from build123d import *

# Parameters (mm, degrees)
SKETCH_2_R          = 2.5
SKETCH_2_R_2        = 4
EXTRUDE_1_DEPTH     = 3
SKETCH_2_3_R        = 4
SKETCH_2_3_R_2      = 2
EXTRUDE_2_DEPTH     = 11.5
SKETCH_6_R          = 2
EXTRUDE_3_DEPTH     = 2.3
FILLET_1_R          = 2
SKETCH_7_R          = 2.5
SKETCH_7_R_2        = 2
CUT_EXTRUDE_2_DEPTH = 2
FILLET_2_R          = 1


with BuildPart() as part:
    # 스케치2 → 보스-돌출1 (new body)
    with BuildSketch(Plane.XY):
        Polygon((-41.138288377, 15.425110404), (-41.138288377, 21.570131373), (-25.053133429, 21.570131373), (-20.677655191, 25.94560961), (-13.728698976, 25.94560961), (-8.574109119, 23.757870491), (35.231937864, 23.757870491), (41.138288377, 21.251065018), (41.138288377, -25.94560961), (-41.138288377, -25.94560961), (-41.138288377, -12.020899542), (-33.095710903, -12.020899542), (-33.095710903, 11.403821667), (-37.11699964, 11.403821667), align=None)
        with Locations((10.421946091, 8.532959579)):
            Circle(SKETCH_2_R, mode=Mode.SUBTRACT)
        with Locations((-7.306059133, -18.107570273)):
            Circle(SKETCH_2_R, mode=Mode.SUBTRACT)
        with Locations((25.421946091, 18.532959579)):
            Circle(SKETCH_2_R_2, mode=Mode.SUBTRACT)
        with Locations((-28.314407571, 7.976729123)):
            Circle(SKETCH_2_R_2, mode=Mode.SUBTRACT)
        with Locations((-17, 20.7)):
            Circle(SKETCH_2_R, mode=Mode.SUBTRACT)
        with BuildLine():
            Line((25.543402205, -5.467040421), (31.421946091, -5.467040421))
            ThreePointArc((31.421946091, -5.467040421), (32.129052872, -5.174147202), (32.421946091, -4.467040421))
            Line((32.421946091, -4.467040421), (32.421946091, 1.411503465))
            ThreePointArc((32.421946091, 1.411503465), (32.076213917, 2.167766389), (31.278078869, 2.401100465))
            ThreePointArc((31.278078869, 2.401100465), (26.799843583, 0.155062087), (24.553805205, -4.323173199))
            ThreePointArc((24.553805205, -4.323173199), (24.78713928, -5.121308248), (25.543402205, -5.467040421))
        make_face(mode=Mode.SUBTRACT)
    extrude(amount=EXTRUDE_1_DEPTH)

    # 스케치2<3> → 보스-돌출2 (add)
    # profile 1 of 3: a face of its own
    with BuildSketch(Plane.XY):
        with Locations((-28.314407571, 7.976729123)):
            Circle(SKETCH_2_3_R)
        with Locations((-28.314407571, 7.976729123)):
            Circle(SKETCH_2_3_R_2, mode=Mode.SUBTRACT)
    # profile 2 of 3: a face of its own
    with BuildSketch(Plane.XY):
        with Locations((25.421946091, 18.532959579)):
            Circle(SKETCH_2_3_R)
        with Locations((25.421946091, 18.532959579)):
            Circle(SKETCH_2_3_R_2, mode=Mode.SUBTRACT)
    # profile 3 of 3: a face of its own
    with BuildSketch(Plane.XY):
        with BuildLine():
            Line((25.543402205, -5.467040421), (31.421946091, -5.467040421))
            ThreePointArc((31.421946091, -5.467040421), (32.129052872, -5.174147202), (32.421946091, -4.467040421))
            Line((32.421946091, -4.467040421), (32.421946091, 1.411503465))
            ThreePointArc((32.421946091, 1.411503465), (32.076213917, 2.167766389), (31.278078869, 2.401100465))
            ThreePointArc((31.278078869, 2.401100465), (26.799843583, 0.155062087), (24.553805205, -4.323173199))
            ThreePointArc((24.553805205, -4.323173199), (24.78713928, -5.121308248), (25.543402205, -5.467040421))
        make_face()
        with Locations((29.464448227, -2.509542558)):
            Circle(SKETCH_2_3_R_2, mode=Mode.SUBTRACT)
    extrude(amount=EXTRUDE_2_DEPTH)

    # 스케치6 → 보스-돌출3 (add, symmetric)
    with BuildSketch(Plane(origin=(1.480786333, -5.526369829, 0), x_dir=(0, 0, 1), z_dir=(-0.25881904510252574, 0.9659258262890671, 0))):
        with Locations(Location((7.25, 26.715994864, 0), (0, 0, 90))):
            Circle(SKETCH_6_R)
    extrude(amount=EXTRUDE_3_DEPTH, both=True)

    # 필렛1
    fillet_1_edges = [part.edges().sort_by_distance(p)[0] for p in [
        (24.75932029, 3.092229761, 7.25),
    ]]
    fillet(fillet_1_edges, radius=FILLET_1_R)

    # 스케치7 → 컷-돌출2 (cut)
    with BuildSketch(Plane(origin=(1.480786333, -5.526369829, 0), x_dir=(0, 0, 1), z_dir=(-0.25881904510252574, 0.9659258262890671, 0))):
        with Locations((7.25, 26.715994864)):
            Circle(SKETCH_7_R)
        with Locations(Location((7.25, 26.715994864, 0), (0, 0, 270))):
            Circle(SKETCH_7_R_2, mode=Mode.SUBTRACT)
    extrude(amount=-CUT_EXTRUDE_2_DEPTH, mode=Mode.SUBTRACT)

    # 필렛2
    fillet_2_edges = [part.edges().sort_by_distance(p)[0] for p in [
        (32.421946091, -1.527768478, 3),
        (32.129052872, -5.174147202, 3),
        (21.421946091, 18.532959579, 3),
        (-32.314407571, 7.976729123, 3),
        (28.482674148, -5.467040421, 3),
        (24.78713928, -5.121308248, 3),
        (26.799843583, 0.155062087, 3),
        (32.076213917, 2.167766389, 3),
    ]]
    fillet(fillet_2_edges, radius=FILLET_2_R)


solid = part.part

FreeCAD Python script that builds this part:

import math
import FreeCAD as App
import Part
import Sketcher
Q = App.Units.Quantity


def edges_at(feature, points):
    """Names of the edges that pass closest to the given points."""
    edges = feature.Shape.Edges
    near = lambda p: min(range(len(edges)), key=lambda i: edges[i].distToShape(Part.Vertex(*p))[0])
    return sorted({f"Edge{near(p) + 1}" for p in points})

doc = App.newDocument("Part")
params = doc.addObject("Spreadsheet::Sheet", "Params")
for row, (alias, value) in enumerate([
    ("sketch1_diameter", "5 mm"),
    ("sketch1_diameter2", "8 mm"),
    ("sketch1_radius", "1 mm"),
    ("pad1_length", "3 mm"),
    ("sketch2_diameter", "8 mm"),
    ("sketch2_diameter2", "4 mm"),
    ("sketch2_radius", "1 mm"),
    ("pad2_length", "11.5 mm"),
    ("sketch3_diameter", "4 mm"),
    ("pad3_length", "4.6 mm"),
    ("fillet_radius", "2 mm"),
    ("sketch4_diameter", "5 mm"),
    ("sketch4_diameter2", "4 mm"),
    ("pocket1_length", "2 mm"),
    ("fillet2_radius", "1 mm"),
], start=1):
    params.set(f"A{row}", alias)
    params.set(f"B{row}", "=" + value)
    params.setAlias(f"B{row}", alias)

body = doc.addObject("PartDesign::Body", "Body")

sketch1 = body.newObject("Sketcher::SketchObject", "Sketch")
sketch1.AttachmentSupport = (doc.getObject("XY_Plane"), [""])
sketch1.MapMode = "FlatFace"
sketch1.addGeometry(Part.LineSegment(App.Vector(-41.1, 21.6, 0), App.Vector(-41.1, 15.4, 0)), False)
sketch1.addGeometry(Part.LineSegment(App.Vector(-41.1, 15.4, 0), App.Vector(-37.1, 11.4, 0)), False)
sketch1.addGeometry(Part.LineSegment(App.Vector(-37.1, 11.4, 0), App.Vector(-33.1, 11.4, 0)), False)
sketch1.addGeometry(Part.LineSegment(App.Vector(-33.1, 11.4, 0), App.Vector(-33.1, -12, 0)), False)
sketch1.addGeometry(Part.LineSegment(App.Vector(-33.1, -12, 0), App.Vector(-41.1, -12, 0)), False)
sketch1.addGeometry(Part.LineSegment(App.Vector(-41.1, -12, 0), App.Vector(-41.1, -25.9, 0)), False)
sketch1.addGeometry(Part.LineSegment(App.Vector(-41.1, -25.9, 0), App.Vector(41.1, -25.9, 0)), False)
sketch1.addGeometry(Part.LineSegment(App.Vector(41.1, -25.9, 0), App.Vector(41.1, 21.3, 0)), False)
sketch1.addGeometry(Part.LineSegment(App.Vector(41.1, 21.3, 0), App.Vector(35.2, 23.8, 0)), False)
sketch1.addGeometry(Part.LineSegment(App.Vector(35.2, 23.8, 0), App.Vector(-8.6, 23.8, 0)), False)
sketch1.addGeometry(Part.LineSegment(App.Vector(-8.6, 23.8, 0), App.Vector(-13.7, 25.9, 0)), False)
sketch1.addGeometry(Part.LineSegment(App.Vector(-13.7, 25.9, 0), App.Vector(-20.7, 25.9, 0)), False)
sketch1.addGeometry(Part.LineSegment(App.Vector(-20.7, 25.9, 0), App.Vector(-25.1, 21.6, 0)), False)
sketch1.addGeometry(Part.LineSegment(App.Vector(-25.1, 21.6, 0), App.Vector(-41.1, 21.6, 0)), False)
sketch1.addGeometry(Part.ArcOfCircle(Part.Circle(App.Vector(25.5, -4.5, 0), App.Vector(0, 0, 1), 1), math.radians(172), math.radians(270)), False)
sketch1.addGeometry(Part.ArcOfCircle(Part.Circle(App.Vector(32.4, -5.5, 0), App.Vector(0, 0, 1), 8), math.radians(98), math.radians(172)), False)
sketch1.addGeometry(Part.ArcOfCircle(Part.Circle(App.Vector(31.4, 1.4, 0), App.Vector(0, 0, 1), 1), math.radians(0), math.radians(98)), False)
sketch1.addGeometry(Part.LineSegment(App.Vector(32.4, 1.4, 0), App.Vector(32.4, -4.5, 0)), False)
sketch1.addGeometry(Part.ArcOfCircle(Part.Circle(App.Vector(31.4, -4.5, 0), App.Vector(0, 0, 1), 1), math.radians(-90), math.radians(0)), False)
sketch1.addGeometry(Part.LineSegment(App.Vector(31.4, -5.5, 0), App.Vector(25.5, -5.5, 0)), False)
sketch1.addGeometry(Part.Circle(App.Vector(-7.3, -18.1, 0), App.Vector(0, 0, 1), 2.5), False)
sketch1.addGeometry(Part.Circle(App.Vector(10.4, 8.5, 0), App.Vector(0, 0, 1), 2.5), False)
sketch1.addGeometry(Part.Circle(App.Vector(25.4, 18.5, 0), App.Vector(0, 0, 1), 4), False)
sketch1.addGeometry(Part.Circle(App.Vector(-28.3, 8, 0), App.Vector(0, 0, 1), 4), False)
sketch1.addGeometry(Part.Circle(App.Vector(-17, 20.7, 0), App.Vector(0, 0, 1), 2.5), False)
sketch1.addConstraint(Sketcher.Constraint("Coincident", 0, 2, 1, 1))
sketch1.addConstraint(Sketcher.Constraint("Coincident", 1, 2, 2, 1))
sketch1.addConstraint(Sketcher.Constraint("Coincident", 2, 2, 3, 1))
sketch1.addConstraint(Sketcher.Constraint("Coincident", 3, 2, 4, 1))
sketch1.addConstraint(Sketcher.Constraint("Coincident", 4, 2, 5, 1))
sketch1.addConstraint(Sketcher.Constraint("Coincident", 5, 2, 6, 1))
sketch1.addConstraint(Sketcher.Constraint("Coincident", 6, 2, 7, 1))
sketch1.addConstraint(Sketcher.Constraint("Coincident", 7, 2, 8, 1))
sketch1.addConstraint(Sketcher.Constraint("Coincident", 8, 2, 9, 1))
sketch1.addConstraint(Sketcher.Constraint("Coincident", 9, 2, 10, 1))
sketch1.addConstraint(Sketcher.Constraint("Coincident", 10, 2, 11, 1))
sketch1.addConstraint(Sketcher.Constraint("Coincident", 11, 2, 12, 1))
sketch1.addConstraint(Sketcher.Constraint("Coincident", 12, 2, 13, 1))
sketch1.addConstraint(Sketcher.Constraint("Coincident", 13, 2, 0, 1))
sketch1.addConstraint(Sketcher.Constraint("Tangent", 14, 1, 15, 2))
sketch1.addConstraint(Sketcher.Constraint("Tangent", 15, 1, 16, 2))
sketch1.addConstraint(Sketcher.Constraint("Tangent", 16, 1, 17, 1))
sketch1.addConstraint(Sketcher.Constraint("Tangent", 17, 2, 18, 2))
sketch1.addConstraint(Sketcher.Constraint("Tangent", 18, 1, 19, 1))
sketch1.addConstraint(Sketcher.Constraint("Tangent", 19, 2, 14, 2))
sketch1.addConstraint(Sketcher.Constraint("Vertical", 0))
sketch1.addConstraint(Sketcher.Constraint("Horizontal", 2))
sketch1.addConstraint(Sketcher.Constraint("Vertical", 3))
sketch1.addConstraint(Sketcher.Constraint("Horizontal", 4))
sketch1.addConstraint(Sketcher.Constraint("Vertical", 5))
sketch1.addConstraint(Sketcher.Constraint("Horizontal", 6))
sketch1.addConstraint(Sketcher.Constraint("Vertical", 7))
sketch1.addConstraint(Sketcher.Constraint("Horizontal", 9))
sketch1.addConstraint(Sketcher.Constraint("Horizontal", 11))
sketch1.addConstraint(Sketcher.Constraint("Horizontal", 13))
sketch1.addConstraint(Sketcher.Constraint("Vertical", 17))
sketch1.addConstraint(Sketcher.Constraint("Horizontal", 19))
sketch1.addConstraint(Sketcher.Constraint("Equal", 14, 16))
sketch1.addConstraint(Sketcher.Constraint("Equal", 16, 18))
sketch1.addConstraint(Sketcher.Constraint("Equal", 20, 21))
sketch1.addConstraint(Sketcher.Constraint("Equal", 22, 23))
sketch1.addConstraint(Sketcher.Constraint("Equal", 21, 24))
sketch1.addConstraint(Sketcher.Constraint("Parallel", 8, 10))
sketch1.addConstraint(Sketcher.Constraint("Perpendicular", 1, 12))
sketch1.addConstraint(Sketcher.Constraint("Horizontal", 15, 3, 18, 1))
sketch1.addConstraint(Sketcher.Constraint("Vertical", 0, 2, 4, 2))
sketch1.addConstraint(Sketcher.Constraint("Vertical", 15, 3, 16, 1))
sketch1.addConstraint(Sketcher.Constraint("Diameter", 20, Q("5 mm")))
sketch1.addConstraint(Sketcher.Constraint("Diameter", 22, Q("8 mm")))
sketch1.addConstraint(Sketcher.Constraint("Radius", 14, Q("1 mm")))
sketch1.addConstraint(Sketcher.Constraint("Angle", 1, Q("-45 deg")))
sketch1.addConstraint(Sketcher.Constraint("DistanceX", 24, 3, -1, 1, Q("17 mm")))
sketch1.addConstraint(Sketcher.Constraint("DistanceY", 14, 3, 21, 3, Q("13 mm")))
sketch1.addConstraint(Sketcher.Constraint("DistanceX", 21, 3, 16, 3, Q("21 mm")))
sketch1.addConstraint(Sketcher.Constraint("DistanceX", 21, 3, 22, 3, Q("15 mm")))
sketch1.addConstraint(Sketcher.Constraint("DistanceY", 21, 3, 22, 3, Q("10 mm")))
sketch1.addConstraint(Sketcher.Constraint("DistanceY", -1, 1, 24, 3, Q("20.7 mm")))
sketch1.addConstraint(Sketcher.Constraint("DistanceX", 1, 2, -1, 1, Q("37.117 mm")))
sketch1.addConstraint(Sketcher.Constraint("Radius", 15, Q("7.950854 mm")))
sketch1.addConstraint(Sketcher.Constraint("DistanceX", 2, 1, 2, 2, Q("4.021289 mm")))
sketch1.addConstraint(Sketcher.Constraint("DistanceY", 0, 2, 0, 1, Q("6.145021 mm")))
sketch1.addConstraint(Sketcher.Constraint("DistanceY", 3, 2, 3, 1, Q("23.424721 mm")))
sketch1.addConstraint(Sketcher.Constraint("DistanceY", 5, 2, 5, 1, Q("13.92471 mm")))
sketch1.addConstraint(Sketcher.Constraint("DistanceY", 3, 2, -1, 1, Q("12.0209 mm")))
sketch1.addConstraint(Sketcher.Constraint("DistanceX", 10, 2, -1, 1, Q("13.728699 mm")))
sketch1.addConstraint(Sketcher.Constraint("DistanceY", -1, 1, 15, 1, Q("2.4011 mm")))
sketch1.addConstraint(Sketcher.Constraint("DistanceY", 20, 3, 23, 3, Q("26.084299 mm")))
sketch1.addConstraint(Sketcher.Constraint("DistanceX", 23, 3, 9, 2, Q("19.740298 mm")))
sketch1.addConstraint(Sketcher.Constraint("DistanceX", 2, 2, 9, 2, Q("24.521602 mm")))
sketch1.addConstraint(Sketcher.Constraint("Distance", 1, Q("5.686961 mm")))
sketch1.addConstraint(Sketcher.Constraint("Distance", 8, Q("6.416311 mm")))
sketch1.addConstraint(Sketcher.Constraint("Distance", 12, Q("6.187861 mm")))
sketch1.addConstraint(Sketcher.Constraint("DistanceX", 6, 1, 6, 2, Q("82.276577 mm")))
sketch1.addConstraint(Sketcher.Constraint("DistanceX", 9, 2, 9, 1, Q("43.806047 mm")))
sketch1.addConstraint(Sketcher.Constraint("DistanceX", 11, 2, 11, 1, Q("6.948956 mm")))
sketch1.addConstraint(Sketcher.Constraint("DistanceX", 20, 3, -1, 1, Q("7.306059 mm")))
sketch1.addConstraint(Sketcher.Constraint("DistanceY", 20, 3, -1, 1, Q("18.10757 mm")))
sketch1.addConstraint(Sketcher.Constraint("DistanceX", -1, 1, 15, 1, Q("31.278079 mm")))
sketch1.setExpression("Constraints[42]", "Params.sketch1_diameter")
sketch1.setExpression("Constraints[43]", "Params.sketch1_diameter2")
sketch1.setExpression("Constraints[44]", "Params.sketch1_radius")
pad1 = body.newObject("PartDesign::Pad", "Pad")
pad1.Profile = sketch1
pad1.setExpression("Length", "Params.pad1_length")

sketch2 = body.newObject("Sketcher::SketchObject", "Sketch001")
sketch2.AttachmentSupport = (doc.getObject("XY_Plane"), [""])
sketch2.MapMode = "FlatFace"
sketch2.addGeometry(Part.Circle(App.Vector(-28.3, 8, 0), App.Vector(0, 0, 1), 4), False)
sketch2.addGeometry(Part.Circle(App.Vector(-28.3, 8, 0), App.Vector(0, 0, 1), 2), False)
sketch2.addGeometry(Part.Circle(App.Vector(25.4, 18.5, 0), App.Vector(0, 0, 1), 4), False)
sketch2.addGeometry(Part.Circle(App.Vector(25.4, 18.5, 0), App.Vector(0, 0, 1), 2), False)
sketch2.addGeometry(Part.LineSegment(App.Vector(25.5, -5.5, 0), App.Vector(31.4, -5.5, 0)), False)
sketch2.addGeometry(Part.ArcOfCircle(Part.Circle(App.Vector(31.4, -4.5, 0), App.Vector(0, 0, 1), 1), math.radians(-90), math.radians(0)), False)
sketch2.addGeometry(Part.LineSegment(App.Vector(32.4, -4.5, 0), App.Vector(32.4, 1.4, 0)), False)
sketch2.addGeometry(Part.ArcOfCircle(Part.Circle(App.Vector(31.4, 1.4, 0), App.Vector(0, 0, 1), 1), math.radians(0), math.radians(98)), False)
sketch2.addGeometry(Part.ArcOfCircle(Part.Circle(App.Vector(32.4, -5.5, 0), App.Vector(0, 0, 1), 8), math.radians(98), math.radians(172)), False)
sketch2.addGeometry(Part.ArcOfCircle(Part.Circle(App.Vector(25.5, -4.5, 0), App.Vector(0, 0, 1), 1), math.radians(172), math.radians(270)), False)
sketch2.addGeometry(Part.Circle(App.Vector(29.5, -2.5, 0), App.Vector(0, 0, 1), 2), False)
sketch2.addConstraint(Sketcher.Constraint("Tangent", 4, 2, 5, 1))
sketch2.addConstraint(Sketcher.Constraint("Tangent", 5, 2, 6, 1))
sketch2.addConstraint(Sketcher.Constraint("Tangent", 6, 2, 7, 1))
sketch2.addConstraint(Sketcher.Constraint("Tangent", 7, 2, 8, 1))
sketch2.addConstraint(Sketcher.Constraint("Tangent", 8, 2, 9, 1))
sketch2.addConstraint(Sketcher.Constraint("Tangent", 9, 2, 4, 1))
sketch2.addConstraint(Sketcher.Constraint("Horizontal", 4))
sketch2.addConstraint(Sketcher.Constraint("Vertical", 6))
sketch2.addConstraint(Sketcher.Constraint("Coincident", 1, 3, 0, 3))
sketch2.addConstraint(Sketcher.Constraint("Coincident", 3, 3, 2, 3))
sketch2.addConstraint(Sketcher.Constraint("Equal", 0, 2))
sketch2.addConstraint(Sketcher.Constraint("Equal", 1, 3))
sketch2.addConstraint(Sketcher.Constraint("Equal", 5, 7))
sketch2.addConstraint(Sketcher.Constraint("Equal", 7, 9))
sketch2.addConstraint(Sketcher.Constraint("Equal", 3, 10))
sketch2.addConstraint(Sketcher.Constraint("Horizontal", 8, 3, 4, 2))
sketch2.addConstraint(Sketcher.Constraint("Vertical", 8, 3, 5, 2))
sketch2.addConstraint(Sketcher.Constraint("Diameter", 0, Q("8 mm")))
sketch2.addConstraint(Sketcher.Constraint("Diameter", 1, Q("4 mm")))
sketch2.addConstraint(Sketcher.Constraint("Radius", 5, Q("1 mm")))
sketch2.addConstraint(Sketcher.Constraint("DistanceX", 2, 3, 5, 3, Q("6 mm")))
sketch2.addConstraint(Sketcher.Constraint("DistanceY", 5, 3, 2, 3, Q("23 mm")))
sketch2.addConstraint(Sketcher.Constraint("Radius", 8, Q("7.950854 mm")))
sketch2.addConstraint(Sketcher.Constraint("DistanceY", -1, 1, 7, 2, Q("2.4011 mm")))
sketch2.addConstraint(Sketcher.Constraint("DistanceY", -1, 1, 0, 3, Q("7.976729 mm")))
sketch2.addConstraint(Sketcher.Constraint("DistanceX", -1, 1, 10, 3, Q("29.464448 mm")))
sketch2.addConstraint(Sketcher.Constraint("DistanceX", -1, 1, 7, 2, Q("31.278079 mm")))
sketch2.addConstraint(Sketcher.Constraint("DistanceY", 8, 2, 10, 3, Q("1.813631 mm")))
sketch2.addConstraint(Sketcher.Constraint("DistanceX", 0, 3, -1, 1, Q("28.314408 mm")))
sketch2.setExpression("Constraints[17]", "Params.sketch2_diameter")
sketch2.setExpression("Constraints[18]", "Params.sketch2_diameter2")
sketch2.setExpression("Constraints[19]", "Params.sketch2_radius")
pad2 = body.newObject("PartDesign::Pad", "Pad001")
pad2.Profile = sketch2
pad2.setExpression("Length", "Params.pad2_length")

sketch3 = body.newObject("Sketcher::SketchObject", "Sketch002")
sketch3.Placement = App.Placement(App.Vector(1.480786, -5.52637, 0), App.Rotation(App.Vector(0, 0, 1), App.Vector(0.965925826, 0.258819045, 0), App.Vector(-0.258819045, 0.965925826, 0), "ZXY"))
sketch3.addGeometry(Part.Circle(App.Vector(7.2, 26.7, 0), App.Vector(0, 0, 1), 2), False)
sketch3.addConstraint(Sketcher.Constraint("Diameter", 0, Q("4 mm")))
sketch3.addConstraint(Sketcher.Constraint("DistanceX", -1, 1, 0, 3, Q("7.25 mm")))
sketch3.addConstraint(Sketcher.Constraint("DistanceY", -1, 1, 0, 3, Q("26.715995 mm")))
sketch3.setExpression("Constraints[0]", "Params.sketch3_diameter")
pad3 = body.newObject("PartDesign::Pad", "Pad002")
pad3.Profile = sketch3
pad3.setExpression("Length", "Params.pad3_length")
pad3.Midplane = True
doc.recompute()

fillet = body.newObject("PartDesign::Fillet", "Fillet")
fillet.Base = (pad3, edges_at(pad3, [(24.759, 3.092, 7.25)]))
fillet.setExpression("Radius", "Params.fillet_radius")

sketch4 = body.newObject("Sketcher::SketchObject", "Sketch003")
sketch4.Placement = App.Placement(App.Vector(1.480786, -5.52637, 0), App.Rotation(App.Vector(0, 0, 1), App.Vector(0.965925826, 0.258819045, 0), App.Vector(-0.258819045, 0.965925826, 0), "ZXY"))
sketch4.addGeometry(Part.Circle(App.Vector(7.2, 26.7, 0), App.Vector(0, 0, 1), 2.5), False)
sketch4.addGeometry(Part.Circle(App.Vector(7.2, 26.7, 0), App.Vector(0, 0, 1), 2), False)
sketch4.addConstraint(Sketcher.Constraint("Coincident", 1, 3, 0, 3))
sketch4.addConstraint(Sketcher.Constraint("Diameter", 0, Q("5 mm")))
sketch4.addConstraint(Sketcher.Constraint("Diameter", 1, Q("4 mm")))
sketch4.addConstraint(Sketcher.Constraint("DistanceX", -1, 1, 0, 3, Q("7.25 mm")))
sketch4.addConstraint(Sketcher.Constraint("DistanceY", -1, 1, 0, 3, Q("26.715995 mm")))
sketch4.setExpression("Constraints[1]", "Params.sketch4_diameter")
sketch4.setExpression("Constraints[2]", "Params.sketch4_diameter2")
pocket1 = body.newObject("PartDesign::Pocket", "Pocket")
pocket1.Profile = sketch4
pocket1.setExpression("Length", "Params.pocket1_length")
doc.recompute()

fillet2 = body.newObject("PartDesign::Fillet", "Fillet001")
fillet2.Base = (pocket1, edges_at(pocket1, [
    (32.422, -1.528, 3),
    (32.129, -5.174, 3),
    (21.422, 18.533, 3),
    (-32.314, 7.977, 3),
    (28.483, -5.467, 3),
    (24.787, -5.121, 3),
    (26.8, 0.155, 3),
    (32.076, 2.168, 3),
]))
fillet2.setExpression("Radius", "Params.fillet2_radius")

doc.recompute()
